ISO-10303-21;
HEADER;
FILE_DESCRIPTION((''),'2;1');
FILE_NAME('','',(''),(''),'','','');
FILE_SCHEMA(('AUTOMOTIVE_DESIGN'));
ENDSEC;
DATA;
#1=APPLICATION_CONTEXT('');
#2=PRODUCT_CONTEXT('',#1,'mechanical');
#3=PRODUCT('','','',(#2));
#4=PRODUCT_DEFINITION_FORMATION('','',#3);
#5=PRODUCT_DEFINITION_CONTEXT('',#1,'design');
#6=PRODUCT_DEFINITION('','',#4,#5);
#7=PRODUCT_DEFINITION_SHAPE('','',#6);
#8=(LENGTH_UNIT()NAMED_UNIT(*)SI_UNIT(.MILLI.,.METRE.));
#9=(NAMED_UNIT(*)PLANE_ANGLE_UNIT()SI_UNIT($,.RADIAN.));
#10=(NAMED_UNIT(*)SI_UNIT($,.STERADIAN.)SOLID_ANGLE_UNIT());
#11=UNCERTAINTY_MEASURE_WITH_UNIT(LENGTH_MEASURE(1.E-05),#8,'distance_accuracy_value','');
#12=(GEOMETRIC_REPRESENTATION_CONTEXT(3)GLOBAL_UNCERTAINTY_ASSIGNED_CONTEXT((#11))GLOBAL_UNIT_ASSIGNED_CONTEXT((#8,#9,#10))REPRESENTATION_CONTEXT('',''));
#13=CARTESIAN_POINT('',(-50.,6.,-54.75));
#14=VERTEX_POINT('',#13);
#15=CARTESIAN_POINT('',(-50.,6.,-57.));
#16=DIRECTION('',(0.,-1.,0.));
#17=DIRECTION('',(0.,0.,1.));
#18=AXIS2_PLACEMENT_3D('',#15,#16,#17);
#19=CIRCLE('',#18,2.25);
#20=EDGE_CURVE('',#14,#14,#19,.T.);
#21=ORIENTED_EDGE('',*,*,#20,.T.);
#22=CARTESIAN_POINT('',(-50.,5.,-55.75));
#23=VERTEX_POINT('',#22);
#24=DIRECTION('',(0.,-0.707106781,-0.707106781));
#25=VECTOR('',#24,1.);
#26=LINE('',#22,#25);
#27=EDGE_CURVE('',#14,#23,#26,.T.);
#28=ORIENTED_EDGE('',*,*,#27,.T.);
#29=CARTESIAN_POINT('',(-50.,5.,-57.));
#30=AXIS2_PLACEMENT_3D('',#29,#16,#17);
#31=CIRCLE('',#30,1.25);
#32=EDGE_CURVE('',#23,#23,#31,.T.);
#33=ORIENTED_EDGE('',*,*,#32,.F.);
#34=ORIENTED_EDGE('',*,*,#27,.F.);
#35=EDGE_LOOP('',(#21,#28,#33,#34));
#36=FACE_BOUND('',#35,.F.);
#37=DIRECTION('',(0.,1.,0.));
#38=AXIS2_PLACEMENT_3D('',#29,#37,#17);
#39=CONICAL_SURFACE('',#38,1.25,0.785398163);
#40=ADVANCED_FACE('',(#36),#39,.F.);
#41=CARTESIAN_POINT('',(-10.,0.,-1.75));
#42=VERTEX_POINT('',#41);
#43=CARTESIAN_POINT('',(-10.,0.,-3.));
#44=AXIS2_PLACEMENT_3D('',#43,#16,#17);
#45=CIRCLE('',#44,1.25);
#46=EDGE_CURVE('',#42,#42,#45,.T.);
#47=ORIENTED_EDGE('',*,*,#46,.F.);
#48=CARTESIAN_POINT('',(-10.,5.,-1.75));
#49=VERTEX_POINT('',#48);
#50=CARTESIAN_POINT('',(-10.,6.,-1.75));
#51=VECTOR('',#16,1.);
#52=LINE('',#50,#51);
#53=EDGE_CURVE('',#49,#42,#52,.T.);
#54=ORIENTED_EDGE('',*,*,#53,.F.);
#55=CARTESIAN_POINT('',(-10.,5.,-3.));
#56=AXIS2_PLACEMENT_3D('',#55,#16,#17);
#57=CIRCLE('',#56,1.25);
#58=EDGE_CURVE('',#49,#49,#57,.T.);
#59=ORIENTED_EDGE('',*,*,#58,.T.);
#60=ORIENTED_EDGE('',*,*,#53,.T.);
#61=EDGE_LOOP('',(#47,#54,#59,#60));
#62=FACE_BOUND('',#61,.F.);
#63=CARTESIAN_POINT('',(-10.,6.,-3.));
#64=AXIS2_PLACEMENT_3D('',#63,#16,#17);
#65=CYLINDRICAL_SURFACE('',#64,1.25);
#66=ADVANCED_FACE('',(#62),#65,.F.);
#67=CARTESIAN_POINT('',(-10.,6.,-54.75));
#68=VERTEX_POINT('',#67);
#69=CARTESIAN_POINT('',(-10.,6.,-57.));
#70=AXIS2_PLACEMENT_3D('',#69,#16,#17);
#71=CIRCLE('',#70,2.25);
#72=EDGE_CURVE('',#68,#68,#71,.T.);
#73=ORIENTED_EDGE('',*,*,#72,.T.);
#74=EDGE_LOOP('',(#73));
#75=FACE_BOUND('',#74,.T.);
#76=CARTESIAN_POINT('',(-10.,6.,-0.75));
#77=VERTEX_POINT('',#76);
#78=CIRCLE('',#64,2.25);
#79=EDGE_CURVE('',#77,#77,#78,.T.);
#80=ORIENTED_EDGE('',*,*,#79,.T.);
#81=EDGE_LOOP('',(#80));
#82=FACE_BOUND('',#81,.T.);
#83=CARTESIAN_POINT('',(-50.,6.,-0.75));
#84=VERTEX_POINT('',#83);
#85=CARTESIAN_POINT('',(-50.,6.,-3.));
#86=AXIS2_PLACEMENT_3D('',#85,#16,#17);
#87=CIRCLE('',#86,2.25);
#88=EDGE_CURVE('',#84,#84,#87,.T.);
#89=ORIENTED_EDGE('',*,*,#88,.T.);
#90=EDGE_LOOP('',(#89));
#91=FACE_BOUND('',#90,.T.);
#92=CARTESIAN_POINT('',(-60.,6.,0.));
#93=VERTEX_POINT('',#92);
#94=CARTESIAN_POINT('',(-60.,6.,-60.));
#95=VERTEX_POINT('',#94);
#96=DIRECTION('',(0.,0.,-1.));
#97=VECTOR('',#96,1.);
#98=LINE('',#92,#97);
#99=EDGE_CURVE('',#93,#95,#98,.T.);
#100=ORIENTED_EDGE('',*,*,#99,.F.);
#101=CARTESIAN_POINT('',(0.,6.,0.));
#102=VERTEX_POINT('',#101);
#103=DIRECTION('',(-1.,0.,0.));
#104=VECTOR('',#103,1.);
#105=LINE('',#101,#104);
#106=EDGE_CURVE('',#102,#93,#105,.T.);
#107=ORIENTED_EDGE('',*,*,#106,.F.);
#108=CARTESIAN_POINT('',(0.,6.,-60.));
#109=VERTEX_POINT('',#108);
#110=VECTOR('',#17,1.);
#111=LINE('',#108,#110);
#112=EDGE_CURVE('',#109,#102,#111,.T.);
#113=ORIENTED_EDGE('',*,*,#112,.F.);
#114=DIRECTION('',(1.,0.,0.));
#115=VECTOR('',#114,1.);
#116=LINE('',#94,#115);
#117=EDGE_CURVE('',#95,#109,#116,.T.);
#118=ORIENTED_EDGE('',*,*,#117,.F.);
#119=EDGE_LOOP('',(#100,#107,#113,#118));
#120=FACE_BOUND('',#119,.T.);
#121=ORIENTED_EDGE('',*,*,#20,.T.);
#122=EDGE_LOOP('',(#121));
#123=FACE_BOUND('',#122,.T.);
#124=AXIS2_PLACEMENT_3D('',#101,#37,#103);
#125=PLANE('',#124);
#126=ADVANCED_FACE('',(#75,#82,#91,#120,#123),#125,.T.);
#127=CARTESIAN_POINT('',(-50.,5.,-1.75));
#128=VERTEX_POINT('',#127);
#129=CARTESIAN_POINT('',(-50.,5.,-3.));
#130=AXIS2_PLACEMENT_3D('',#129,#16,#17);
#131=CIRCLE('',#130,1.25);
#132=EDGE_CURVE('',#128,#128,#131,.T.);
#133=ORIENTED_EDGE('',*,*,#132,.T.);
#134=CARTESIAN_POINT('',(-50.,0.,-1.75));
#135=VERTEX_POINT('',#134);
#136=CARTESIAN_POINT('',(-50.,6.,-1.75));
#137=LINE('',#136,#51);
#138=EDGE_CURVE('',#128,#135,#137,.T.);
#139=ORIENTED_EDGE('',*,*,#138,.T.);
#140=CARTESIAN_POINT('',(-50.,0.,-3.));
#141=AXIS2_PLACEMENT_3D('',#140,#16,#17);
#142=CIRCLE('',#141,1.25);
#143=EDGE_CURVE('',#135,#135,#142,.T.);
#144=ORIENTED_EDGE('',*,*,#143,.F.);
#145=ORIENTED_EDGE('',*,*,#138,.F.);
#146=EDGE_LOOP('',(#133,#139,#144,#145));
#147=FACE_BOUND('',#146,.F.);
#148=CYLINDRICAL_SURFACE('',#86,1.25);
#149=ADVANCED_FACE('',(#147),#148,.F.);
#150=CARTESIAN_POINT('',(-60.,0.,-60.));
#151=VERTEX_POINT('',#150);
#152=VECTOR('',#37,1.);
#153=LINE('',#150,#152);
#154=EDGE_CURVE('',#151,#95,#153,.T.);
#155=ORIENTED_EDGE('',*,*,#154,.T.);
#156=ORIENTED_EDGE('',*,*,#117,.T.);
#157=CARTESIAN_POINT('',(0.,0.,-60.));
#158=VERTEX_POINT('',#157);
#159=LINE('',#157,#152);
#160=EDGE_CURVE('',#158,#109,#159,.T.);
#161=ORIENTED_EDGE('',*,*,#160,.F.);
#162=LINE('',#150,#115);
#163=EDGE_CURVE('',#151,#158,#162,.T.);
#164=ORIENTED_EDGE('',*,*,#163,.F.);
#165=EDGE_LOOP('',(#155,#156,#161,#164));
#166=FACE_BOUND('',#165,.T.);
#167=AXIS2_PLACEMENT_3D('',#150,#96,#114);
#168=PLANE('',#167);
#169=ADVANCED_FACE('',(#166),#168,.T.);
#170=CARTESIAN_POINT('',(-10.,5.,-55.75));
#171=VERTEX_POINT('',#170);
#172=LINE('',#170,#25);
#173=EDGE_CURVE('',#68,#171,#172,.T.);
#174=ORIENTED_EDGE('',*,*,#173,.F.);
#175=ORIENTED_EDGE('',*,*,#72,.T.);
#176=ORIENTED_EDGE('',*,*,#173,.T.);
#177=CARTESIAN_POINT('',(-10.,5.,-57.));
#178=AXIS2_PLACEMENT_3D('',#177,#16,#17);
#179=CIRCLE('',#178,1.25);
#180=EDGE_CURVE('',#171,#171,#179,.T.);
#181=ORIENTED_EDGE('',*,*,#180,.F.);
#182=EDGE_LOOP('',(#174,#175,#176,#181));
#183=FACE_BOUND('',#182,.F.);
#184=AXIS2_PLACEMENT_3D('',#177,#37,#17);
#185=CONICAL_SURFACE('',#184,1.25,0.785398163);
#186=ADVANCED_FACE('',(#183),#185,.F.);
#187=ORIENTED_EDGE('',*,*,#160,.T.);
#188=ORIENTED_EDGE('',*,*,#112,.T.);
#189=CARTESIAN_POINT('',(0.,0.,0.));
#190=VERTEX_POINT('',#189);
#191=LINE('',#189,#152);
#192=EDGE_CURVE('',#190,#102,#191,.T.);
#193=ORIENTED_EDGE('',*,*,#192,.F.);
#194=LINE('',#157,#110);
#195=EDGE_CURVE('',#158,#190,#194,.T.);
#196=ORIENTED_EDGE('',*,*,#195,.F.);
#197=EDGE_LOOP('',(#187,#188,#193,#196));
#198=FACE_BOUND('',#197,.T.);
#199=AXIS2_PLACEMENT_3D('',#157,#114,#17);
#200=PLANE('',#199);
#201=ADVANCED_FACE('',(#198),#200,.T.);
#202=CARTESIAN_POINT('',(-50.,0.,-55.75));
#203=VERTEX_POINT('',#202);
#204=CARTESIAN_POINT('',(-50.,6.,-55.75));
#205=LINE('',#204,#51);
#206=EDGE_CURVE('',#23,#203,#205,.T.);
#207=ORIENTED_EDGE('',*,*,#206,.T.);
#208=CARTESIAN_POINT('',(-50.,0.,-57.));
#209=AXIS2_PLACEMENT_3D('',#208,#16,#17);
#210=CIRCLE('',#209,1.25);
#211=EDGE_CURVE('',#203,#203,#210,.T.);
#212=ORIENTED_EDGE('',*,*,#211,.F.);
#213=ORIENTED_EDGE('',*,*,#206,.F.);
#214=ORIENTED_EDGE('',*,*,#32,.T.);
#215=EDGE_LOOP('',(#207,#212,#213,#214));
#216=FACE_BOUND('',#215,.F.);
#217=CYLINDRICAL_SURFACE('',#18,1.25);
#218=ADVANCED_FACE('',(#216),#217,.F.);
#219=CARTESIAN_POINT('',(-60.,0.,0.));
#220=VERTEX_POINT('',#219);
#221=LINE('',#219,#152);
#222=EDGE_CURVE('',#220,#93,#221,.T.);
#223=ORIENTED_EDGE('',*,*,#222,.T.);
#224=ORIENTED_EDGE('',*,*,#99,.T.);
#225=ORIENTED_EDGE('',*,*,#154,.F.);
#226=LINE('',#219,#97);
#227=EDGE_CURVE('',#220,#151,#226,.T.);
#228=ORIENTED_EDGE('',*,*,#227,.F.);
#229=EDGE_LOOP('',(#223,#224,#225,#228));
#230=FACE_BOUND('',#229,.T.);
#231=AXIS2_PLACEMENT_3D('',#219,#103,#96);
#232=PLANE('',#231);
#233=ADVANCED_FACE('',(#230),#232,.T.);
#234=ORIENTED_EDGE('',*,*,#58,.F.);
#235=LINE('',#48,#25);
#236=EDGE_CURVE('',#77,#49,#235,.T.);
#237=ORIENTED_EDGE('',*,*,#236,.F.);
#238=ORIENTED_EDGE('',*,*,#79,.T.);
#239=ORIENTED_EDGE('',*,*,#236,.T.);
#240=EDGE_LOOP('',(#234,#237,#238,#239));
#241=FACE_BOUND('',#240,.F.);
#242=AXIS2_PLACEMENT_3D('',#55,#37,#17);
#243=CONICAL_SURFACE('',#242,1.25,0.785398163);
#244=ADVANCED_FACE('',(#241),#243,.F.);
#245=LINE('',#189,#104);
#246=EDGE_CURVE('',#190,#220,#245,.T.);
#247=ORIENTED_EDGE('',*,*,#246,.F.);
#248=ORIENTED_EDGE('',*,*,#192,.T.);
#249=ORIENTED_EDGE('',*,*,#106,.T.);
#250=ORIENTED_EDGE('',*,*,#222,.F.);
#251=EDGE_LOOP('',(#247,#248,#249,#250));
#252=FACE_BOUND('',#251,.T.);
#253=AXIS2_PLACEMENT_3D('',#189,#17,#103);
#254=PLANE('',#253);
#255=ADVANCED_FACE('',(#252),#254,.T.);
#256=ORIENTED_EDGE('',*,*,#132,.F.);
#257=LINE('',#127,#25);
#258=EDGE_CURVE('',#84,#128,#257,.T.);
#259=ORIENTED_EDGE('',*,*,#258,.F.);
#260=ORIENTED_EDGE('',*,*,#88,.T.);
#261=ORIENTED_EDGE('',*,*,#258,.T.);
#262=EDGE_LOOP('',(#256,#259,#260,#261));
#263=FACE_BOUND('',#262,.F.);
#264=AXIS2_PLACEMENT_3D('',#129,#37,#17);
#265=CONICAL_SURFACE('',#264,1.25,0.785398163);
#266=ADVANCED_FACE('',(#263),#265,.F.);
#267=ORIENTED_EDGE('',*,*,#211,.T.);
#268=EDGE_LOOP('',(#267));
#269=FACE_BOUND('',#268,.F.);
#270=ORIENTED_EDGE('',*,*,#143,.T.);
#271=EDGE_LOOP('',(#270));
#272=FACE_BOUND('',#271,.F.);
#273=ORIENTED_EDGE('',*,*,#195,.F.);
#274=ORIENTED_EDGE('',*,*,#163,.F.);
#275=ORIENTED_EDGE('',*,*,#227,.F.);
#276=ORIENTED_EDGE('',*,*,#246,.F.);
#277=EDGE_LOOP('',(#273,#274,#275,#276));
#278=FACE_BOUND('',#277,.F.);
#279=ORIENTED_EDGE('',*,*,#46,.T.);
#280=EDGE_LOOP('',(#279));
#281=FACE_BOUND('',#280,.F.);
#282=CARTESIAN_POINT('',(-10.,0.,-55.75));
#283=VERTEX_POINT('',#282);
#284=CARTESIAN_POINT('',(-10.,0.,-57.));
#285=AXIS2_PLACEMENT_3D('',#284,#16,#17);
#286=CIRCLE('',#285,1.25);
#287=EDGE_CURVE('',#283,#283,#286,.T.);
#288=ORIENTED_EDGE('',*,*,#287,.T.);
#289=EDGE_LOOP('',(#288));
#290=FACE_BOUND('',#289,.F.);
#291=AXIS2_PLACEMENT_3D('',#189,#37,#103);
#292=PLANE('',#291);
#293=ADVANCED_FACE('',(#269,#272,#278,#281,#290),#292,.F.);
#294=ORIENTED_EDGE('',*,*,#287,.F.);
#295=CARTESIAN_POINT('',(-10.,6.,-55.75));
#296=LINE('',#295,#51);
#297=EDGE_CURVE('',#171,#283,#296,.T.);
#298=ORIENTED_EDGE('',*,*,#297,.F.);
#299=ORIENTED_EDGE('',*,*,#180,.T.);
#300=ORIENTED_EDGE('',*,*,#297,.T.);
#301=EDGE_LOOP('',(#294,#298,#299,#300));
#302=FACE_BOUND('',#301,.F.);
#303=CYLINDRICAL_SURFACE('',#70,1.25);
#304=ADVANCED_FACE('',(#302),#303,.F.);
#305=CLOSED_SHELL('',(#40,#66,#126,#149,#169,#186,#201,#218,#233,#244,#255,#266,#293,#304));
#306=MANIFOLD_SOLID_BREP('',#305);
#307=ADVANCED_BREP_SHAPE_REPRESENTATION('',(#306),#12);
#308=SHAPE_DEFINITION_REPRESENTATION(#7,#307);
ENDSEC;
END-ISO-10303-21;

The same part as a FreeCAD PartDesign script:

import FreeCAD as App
import Part
import Sketcher

V = App.Vector
Q = App.Units.Quantity


def edges_at(feature, points):
    """Names of the edges that pass closest to the given points."""
    edges = feature.Shape.Edges
    near = lambda p: min(range(len(edges)), key=lambda i: edges[i].distToShape(Part.Vertex(*p))[0])
    return sorted({f"Edge{near(p) + 1}" for p in points})


def add_polygon(sketch, points):
    """Adds a closed chain of lines whose ends are joined by coincident constraints."""
    first, n = sketch.GeometryCount, len(points)
    for a, b in zip(points, points[1:] + points[:1]):
        sketch.addGeometry(Part.LineSegment(App.Vector(*a, 0), App.Vector(*b, 0)), False)
    for i in range(n):
        sketch.addConstraint(Sketcher.Constraint("Coincident", first + i, 2, first + (i + 1) % n, 1))

doc = App.newDocument("Part")
body = doc.addObject("PartDesign::Body", "Body")

# Sketch on XZ plane
sketch1 = body.newObject("Sketcher::SketchObject", "Sketch")
sketch1.AttachmentSupport = (doc.getObject("XZ_Plane"), [""])
sketch1.MapMode = "FlatFace"
add_polygon(sketch1, [(-60, 0), (0, 0), (0, -60), (-60, -60)])  # lines 0-3
sketch1.addConstraint(Sketcher.Constraint("Horizontal", 0))
sketch1.addConstraint(Sketcher.Constraint("Vertical", 1))
sketch1.addConstraint(Sketcher.Constraint("Horizontal", 2))
sketch1.addConstraint(Sketcher.Constraint("Vertical", 3))
sketch1.addConstraint(Sketcher.Constraint("Coincident", 0, 2, -1, 1))
sketch1.addConstraint(Sketcher.Constraint("Equal", 2, 1))
sketch1.addConstraint(Sketcher.Constraint("DistanceX", 0, 1, 0, 2, Q("60 mm")))
pad1 = body.newObject("PartDesign::Pad", "Pad")
pad1.Profile = sketch1
pad1.Length = 6
pad1.Reversed = True

# Sketch on XZ plane
sketch2 = body.newObject("Sketcher::SketchObject", "Sketch001")
sketch2.AttachmentSupport = (doc.getObject("XZ_Plane"), [""])
sketch2.MapMode = "FlatFace"
sketch2.AttachmentOffset = App.Placement(V(0, 0, -6), App.Rotation())
sketch2.addGeometry(Part.Circle(V(-50, -3, 0), V(0, 0, 1), 1.25), False)
sketch2.addGeometry(Part.Circle(V(-10, -3, 0), V(0, 0, 1), 1.25), False)
sketch2.addGeometry(Part.Circle(V(-50, -57, 0), V(0, 0, 1), 1.25), False)
sketch2.addGeometry(Part.Circle(V(-10, -57, 0), V(0, 0, 1), 1.25), False)
sketch2.addConstraint(Sketcher.Constraint("Equal", 0, 1))
sketch2.addConstraint(Sketcher.Constraint("Equal", 1, 2))
sketch2.addConstraint(Sketcher.Constraint("Equal", 2, 3))
sketch2.addConstraint(Sketcher.Constraint("Horizontal", 0, 3, 1, 3))
sketch2.addConstraint(Sketcher.Constraint("Horizontal", 2, 3, 3, 3))
sketch2.addConstraint(Sketcher.Constraint("Vertical", 0, 3, 2, 3))
sketch2.addConstraint(Sketcher.Constraint("Vertical", 1, 3, 3, 3))
sketch2.addConstraint(Sketcher.Constraint("Diameter", 0, Q("2.5 mm")))
sketch2.addConstraint(Sketcher.Constraint("DistanceX", 0, 3, -1, 1, Q("50 mm")))
sketch2.addConstraint(Sketcher.Constraint("DistanceY", 0, 3, -1, 1, Q("3 mm")))
sketch2.addConstraint(Sketcher.Constraint("DistanceX", 1, 3, -1, 1, Q("10 mm")))
sketch2.addConstraint(Sketcher.Constraint("DistanceY", 2, 3, -1, 1, Q("57 mm")))
doc.recompute()
hole = body.newObject("PartDesign::Hole", "Hole")
hole.Profile = sketch2
hole.ThreadType = "None"
hole.Diameter = 2.5
hole.DepthType = "Dimension"
hole.Depth = 10
hole.DrillPoint = "Angled"
hole.DrillPointAngle = 118
hole.Reversed = True
doc.recompute()

chamfer = body.newObject("PartDesign::Chamfer", "Chamfer")
chamfer.Base = (hole, edges_at(hole, [
    (-10, 6, -58.25),
    (-50, 6, -58.25),
    (-10, 6, -4.25),
    (-50, 6, -4.25),
]))
chamfer.Size = 1

doc.recompute()
